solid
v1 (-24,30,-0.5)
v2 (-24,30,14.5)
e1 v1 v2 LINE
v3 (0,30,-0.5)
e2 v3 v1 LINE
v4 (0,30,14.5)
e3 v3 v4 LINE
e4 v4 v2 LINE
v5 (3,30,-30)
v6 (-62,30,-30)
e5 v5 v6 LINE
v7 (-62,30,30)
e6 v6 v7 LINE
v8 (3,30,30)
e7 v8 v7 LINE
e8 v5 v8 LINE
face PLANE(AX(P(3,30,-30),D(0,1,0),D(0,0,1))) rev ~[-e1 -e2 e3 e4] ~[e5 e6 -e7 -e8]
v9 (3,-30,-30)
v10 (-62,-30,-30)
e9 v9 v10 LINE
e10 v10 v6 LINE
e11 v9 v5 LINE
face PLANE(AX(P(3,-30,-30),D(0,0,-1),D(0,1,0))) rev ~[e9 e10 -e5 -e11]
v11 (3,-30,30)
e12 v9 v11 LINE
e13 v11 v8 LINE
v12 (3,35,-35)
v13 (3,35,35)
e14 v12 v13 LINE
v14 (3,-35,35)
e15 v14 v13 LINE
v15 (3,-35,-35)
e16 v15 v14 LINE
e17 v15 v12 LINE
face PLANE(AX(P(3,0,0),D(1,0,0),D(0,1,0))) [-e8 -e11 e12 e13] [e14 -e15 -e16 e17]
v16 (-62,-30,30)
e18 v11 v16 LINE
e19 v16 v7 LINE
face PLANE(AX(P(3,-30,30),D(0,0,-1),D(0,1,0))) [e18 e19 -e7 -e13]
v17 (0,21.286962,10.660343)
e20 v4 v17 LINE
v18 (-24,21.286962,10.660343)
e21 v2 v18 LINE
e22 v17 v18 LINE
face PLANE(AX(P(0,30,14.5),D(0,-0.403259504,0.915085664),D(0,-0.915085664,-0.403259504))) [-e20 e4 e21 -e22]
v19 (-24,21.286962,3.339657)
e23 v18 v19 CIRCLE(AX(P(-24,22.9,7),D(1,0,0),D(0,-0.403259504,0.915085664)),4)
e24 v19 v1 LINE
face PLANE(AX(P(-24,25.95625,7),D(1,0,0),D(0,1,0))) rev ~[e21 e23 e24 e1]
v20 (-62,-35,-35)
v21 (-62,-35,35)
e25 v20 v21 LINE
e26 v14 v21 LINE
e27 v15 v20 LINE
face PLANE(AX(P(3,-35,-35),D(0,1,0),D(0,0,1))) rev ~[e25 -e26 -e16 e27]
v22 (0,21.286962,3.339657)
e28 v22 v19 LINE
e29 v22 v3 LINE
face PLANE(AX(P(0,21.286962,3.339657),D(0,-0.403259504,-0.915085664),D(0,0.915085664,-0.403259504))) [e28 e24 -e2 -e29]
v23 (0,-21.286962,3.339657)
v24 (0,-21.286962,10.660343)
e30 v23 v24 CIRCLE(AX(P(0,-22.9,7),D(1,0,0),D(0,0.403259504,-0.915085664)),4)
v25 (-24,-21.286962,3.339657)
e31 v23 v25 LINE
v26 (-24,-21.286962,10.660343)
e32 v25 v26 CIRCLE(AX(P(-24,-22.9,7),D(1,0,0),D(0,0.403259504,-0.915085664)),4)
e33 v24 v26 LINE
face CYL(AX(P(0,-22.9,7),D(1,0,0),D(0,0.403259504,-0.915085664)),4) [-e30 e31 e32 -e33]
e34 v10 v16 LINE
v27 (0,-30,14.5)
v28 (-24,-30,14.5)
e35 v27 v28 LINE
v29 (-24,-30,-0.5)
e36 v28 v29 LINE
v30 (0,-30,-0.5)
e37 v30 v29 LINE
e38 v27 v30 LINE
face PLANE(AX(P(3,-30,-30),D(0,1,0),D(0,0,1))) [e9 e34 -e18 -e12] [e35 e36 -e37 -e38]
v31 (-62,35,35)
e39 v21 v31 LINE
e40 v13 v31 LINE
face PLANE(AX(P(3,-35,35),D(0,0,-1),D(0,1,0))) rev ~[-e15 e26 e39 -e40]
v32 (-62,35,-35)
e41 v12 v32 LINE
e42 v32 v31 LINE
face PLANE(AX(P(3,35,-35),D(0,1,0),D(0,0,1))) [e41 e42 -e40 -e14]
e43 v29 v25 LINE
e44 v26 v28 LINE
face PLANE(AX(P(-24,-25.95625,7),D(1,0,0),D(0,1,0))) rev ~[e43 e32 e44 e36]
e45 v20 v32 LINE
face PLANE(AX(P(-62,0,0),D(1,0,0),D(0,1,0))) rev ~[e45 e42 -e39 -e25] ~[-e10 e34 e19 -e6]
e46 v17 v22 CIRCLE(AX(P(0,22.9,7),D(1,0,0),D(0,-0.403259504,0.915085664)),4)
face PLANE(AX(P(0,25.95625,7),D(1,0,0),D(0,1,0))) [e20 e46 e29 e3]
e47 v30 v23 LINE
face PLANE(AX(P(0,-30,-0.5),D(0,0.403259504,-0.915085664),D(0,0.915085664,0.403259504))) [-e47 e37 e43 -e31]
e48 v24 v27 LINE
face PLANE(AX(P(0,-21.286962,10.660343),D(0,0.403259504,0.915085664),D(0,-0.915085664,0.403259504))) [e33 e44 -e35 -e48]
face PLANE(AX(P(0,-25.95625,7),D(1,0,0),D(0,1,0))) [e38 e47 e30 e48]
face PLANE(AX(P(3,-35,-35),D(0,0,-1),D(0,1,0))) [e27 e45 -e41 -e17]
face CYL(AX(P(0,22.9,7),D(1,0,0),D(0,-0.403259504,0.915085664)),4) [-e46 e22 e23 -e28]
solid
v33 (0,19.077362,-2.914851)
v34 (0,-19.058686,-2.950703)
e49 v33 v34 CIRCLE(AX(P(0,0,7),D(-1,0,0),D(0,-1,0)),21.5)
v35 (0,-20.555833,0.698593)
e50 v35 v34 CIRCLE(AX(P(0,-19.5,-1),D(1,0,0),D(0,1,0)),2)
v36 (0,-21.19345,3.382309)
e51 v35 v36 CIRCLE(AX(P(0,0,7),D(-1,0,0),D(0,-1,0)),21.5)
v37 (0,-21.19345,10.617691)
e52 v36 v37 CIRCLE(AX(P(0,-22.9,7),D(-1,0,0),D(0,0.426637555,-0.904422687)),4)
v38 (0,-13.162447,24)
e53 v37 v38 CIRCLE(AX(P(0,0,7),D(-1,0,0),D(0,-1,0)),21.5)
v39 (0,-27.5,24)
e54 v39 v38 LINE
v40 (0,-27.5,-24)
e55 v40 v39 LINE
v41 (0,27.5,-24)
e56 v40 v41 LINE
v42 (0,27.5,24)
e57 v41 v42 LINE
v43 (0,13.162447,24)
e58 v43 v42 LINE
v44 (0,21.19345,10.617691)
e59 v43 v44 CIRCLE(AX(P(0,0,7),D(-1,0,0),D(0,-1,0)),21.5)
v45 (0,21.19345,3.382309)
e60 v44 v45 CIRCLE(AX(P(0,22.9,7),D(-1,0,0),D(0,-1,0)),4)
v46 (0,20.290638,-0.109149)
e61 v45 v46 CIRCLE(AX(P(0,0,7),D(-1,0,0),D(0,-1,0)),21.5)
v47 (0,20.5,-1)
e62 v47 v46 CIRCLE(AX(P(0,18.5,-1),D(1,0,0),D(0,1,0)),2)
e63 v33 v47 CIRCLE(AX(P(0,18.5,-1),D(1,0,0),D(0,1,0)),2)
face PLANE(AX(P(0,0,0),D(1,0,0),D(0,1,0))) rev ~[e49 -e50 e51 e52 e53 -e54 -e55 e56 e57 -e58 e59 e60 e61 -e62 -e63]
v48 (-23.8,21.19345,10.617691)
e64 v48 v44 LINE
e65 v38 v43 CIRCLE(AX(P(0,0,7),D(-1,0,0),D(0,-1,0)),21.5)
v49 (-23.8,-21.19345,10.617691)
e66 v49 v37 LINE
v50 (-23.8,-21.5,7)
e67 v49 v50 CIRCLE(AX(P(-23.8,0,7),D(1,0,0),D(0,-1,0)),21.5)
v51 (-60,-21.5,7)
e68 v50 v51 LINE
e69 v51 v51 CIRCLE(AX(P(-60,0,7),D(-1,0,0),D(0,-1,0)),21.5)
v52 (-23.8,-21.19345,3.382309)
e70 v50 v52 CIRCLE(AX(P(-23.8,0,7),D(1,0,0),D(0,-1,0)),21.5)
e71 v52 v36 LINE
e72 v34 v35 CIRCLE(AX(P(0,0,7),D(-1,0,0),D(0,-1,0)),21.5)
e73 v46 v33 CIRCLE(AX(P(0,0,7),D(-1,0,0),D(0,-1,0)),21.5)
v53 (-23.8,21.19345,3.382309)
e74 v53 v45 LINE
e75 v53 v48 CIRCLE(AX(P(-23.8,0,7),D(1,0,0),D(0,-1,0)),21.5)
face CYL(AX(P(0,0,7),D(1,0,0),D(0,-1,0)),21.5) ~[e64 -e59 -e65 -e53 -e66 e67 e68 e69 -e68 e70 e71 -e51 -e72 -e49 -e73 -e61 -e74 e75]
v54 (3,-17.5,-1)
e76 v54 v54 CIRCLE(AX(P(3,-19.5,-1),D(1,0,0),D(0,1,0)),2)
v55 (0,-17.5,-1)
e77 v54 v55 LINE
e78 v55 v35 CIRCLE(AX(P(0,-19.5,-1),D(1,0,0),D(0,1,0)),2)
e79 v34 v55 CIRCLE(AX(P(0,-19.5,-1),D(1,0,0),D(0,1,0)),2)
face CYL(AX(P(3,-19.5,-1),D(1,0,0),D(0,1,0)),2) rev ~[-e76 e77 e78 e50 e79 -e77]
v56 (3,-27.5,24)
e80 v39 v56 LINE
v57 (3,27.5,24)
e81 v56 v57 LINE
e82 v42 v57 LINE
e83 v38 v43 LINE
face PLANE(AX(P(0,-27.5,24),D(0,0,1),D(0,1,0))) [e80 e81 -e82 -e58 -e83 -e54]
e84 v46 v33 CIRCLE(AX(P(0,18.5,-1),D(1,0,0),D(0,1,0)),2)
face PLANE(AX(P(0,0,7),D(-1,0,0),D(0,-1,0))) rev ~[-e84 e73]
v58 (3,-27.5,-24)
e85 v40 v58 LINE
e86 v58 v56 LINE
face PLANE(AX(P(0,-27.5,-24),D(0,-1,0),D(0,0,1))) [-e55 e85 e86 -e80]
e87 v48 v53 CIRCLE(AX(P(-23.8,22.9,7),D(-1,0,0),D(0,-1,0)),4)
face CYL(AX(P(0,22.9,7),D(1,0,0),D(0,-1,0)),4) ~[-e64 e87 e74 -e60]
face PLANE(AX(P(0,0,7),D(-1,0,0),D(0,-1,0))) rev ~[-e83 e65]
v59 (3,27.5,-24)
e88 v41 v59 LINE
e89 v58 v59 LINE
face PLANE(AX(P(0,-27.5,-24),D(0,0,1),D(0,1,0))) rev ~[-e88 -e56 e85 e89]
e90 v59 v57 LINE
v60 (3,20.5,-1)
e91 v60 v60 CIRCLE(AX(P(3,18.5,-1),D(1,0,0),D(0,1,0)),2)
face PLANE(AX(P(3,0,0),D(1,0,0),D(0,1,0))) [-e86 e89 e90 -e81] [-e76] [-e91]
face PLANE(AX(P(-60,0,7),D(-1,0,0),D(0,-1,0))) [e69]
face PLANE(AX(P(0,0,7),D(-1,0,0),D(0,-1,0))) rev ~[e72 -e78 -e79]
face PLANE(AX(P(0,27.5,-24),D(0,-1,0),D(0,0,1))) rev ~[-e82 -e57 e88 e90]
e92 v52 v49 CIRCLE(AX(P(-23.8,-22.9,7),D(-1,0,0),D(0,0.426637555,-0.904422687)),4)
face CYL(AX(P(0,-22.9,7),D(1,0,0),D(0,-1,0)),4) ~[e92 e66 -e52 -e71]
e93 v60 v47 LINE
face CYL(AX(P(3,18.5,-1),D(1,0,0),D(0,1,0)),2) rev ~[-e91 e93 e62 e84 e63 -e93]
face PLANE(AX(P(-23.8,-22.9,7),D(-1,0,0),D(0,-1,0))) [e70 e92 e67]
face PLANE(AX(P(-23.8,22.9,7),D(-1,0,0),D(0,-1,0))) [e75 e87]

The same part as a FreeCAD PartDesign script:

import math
import FreeCAD as App
import Part
import Sketcher

V = App.Vector
Q = App.Units.Quantity

doc = App.newDocument("Part")
body = doc.addObject("PartDesign::Body", "Body")

# Sketch on YZ plane
sketch1 = body.newObject("Sketcher::SketchObject", "Sketch")
sketch1.AttachmentSupport = (doc.getObject("YZ_Plane"), [""])
sketch1.MapMode = "FlatFace"
sketch1.addGeometry(Part.LineSegment(V(-27.5, 24, 0), V(-27.5, -24, 0)), False)
sketch1.addGeometry(Part.LineSegment(V(-27.5, -24, 0), V(27.5, -24, 0)), False)
sketch1.addGeometry(Part.LineSegment(V(27.5, -24, 0), V(27.5, 24, 0)), False)
sketch1.addGeometry(Part.LineSegment(V(27.5, 24, 0), V(-27.5, 24, 0)), False)
sketch1.addConstraint(Sketcher.Constraint("Coincident", 0, 2, 1, 1))
sketch1.addConstraint(Sketcher.Constraint("Coincident", 1, 2, 2, 1))
sketch1.addConstraint(Sketcher.Constraint("Coincident", 2, 2, 3, 1))
sketch1.addConstraint(Sketcher.Constraint("Coincident", 3, 2, 0, 1))
sketch1.addConstraint(Sketcher.Constraint("Vertical", 0))
sketch1.addConstraint(Sketcher.Constraint("Horizontal", 1))
sketch1.addConstraint(Sketcher.Constraint("Vertical", 2))
sketch1.addConstraint(Sketcher.Constraint("Horizontal", 3))
sketch1.addConstraint(Sketcher.Constraint("Symmetric", 0, 2, 2, 2, -1, 1))
sketch1.addConstraint(Sketcher.Constraint("DistanceX", 1, 1, 1, 2, Q("55 mm")))
sketch1.addConstraint(Sketcher.Constraint("DistanceY", 0, 2, 0, 1, Q("48 mm")))
pad1 = body.newObject("PartDesign::Pad", "Pad")
pad1.Profile = sketch1
pad1.Length = 3

# Sketch on YZ plane
sketch2 = body.newObject("Sketcher::SketchObject", "Sketch001")
sketch2.AttachmentSupport = (doc.getObject("YZ_Plane"), [""])
sketch2.MapMode = "FlatFace"
sketch2.addGeometry(Part.Circle(V(22.9, 7, 0), V(0, 0, 1), 4), False)
sketch2.addGeometry(Part.Circle(V(-22.9, 7, 0), V(0, 0, 1), 4), False)
sketch2.addConstraint(Sketcher.Constraint("Equal", 0, 1))
sketch2.addConstraint(Sketcher.Constraint("Symmetric", 0, 3, 1, 3, -2))
sketch2.addConstraint(Sketcher.Constraint("Diameter", 0, Q("8 mm")))
sketch2.addConstraint(Sketcher.Constraint("DistanceY", -1, 1, 0, 3, Q("7 mm")))
sketch2.addConstraint(Sketcher.Constraint("DistanceX", -1, 1, 0, 3, Q("22.9 mm")))
pad2 = body.newObject("PartDesign::Pad", "Pad001")
pad2.Profile = sketch2
pad2.Length = 23.8
pad2.Reversed = True

# Sketch on YZ plane
sketch3 = body.newObject("Sketcher::SketchObject", "Sketch002")
sketch3.AttachmentSupport = (doc.getObject("YZ_Plane"), [""])
sketch3.MapMode = "FlatFace"
sketch3.AttachmentOffset = App.Placement(V(0, 0, 3), App.Rotation())
sketch3.addGeometry(Part.Circle(V(-19.5, -1, 0), V(0, 0, 1), 2), False)
sketch3.addGeometry(Part.Circle(V(18.5, -1, 0), V(0, 0, 1), 2), False)
sketch3.addConstraint(Sketcher.Constraint("Equal", 0, 1))
sketch3.addConstraint(Sketcher.Constraint("Horizontal", 0, 3, 1, 3))
sketch3.addConstraint(Sketcher.Constraint("Diameter", 0, Q("4 mm")))
sketch3.addConstraint(Sketcher.Constraint("DistanceY", 0, 3, -1, 1, Q("1 mm")))
sketch3.addConstraint(Sketcher.Constraint("DistanceX", 0, 3, 1, 3, Q("38 mm")))
sketch3.addConstraint(Sketcher.Constraint("DistanceX", 0, 3, -1, 1, Q("19.5 mm")))
pocket1 = body.newObject("PartDesign::Pocket", "Pocket")
pocket1.Profile = sketch3
pocket1.Length = 25

# Sketch on YZ plane
sketch4 = body.newObject("Sketcher::SketchObject", "Sketch003")
sketch4.AttachmentSupport = (doc.getObject("YZ_Plane"), [""])
sketch4.MapMode = "FlatFace"
sketch4.addGeometry(Part.Circle(V(0, 7, 0), V(0, 0, 1), 21.5), False)
sketch4.addConstraint(Sketcher.Constraint("PointOnObject", 0, 3, -2))
sketch4.addConstraint(Sketcher.Constraint("Diameter", 0, Q("43 mm")))
sketch4.addConstraint(Sketcher.Constraint("DistanceY", -1, 1, 0, 3, Q("7 mm")))
pad3 = body.newObject("PartDesign::Pad", "Pad002")
pad3.Profile = sketch4
pad3.Length = 60
pad3.Reversed = True
body2 = doc.addObject("PartDesign::Body", "Body001")

# Sketch on YZ plane
sketch5 = body2.newObject("Sketcher::SketchObject", "Sketch004")
sketch5.AttachmentSupport = (doc.getObject("YZ_Plane001"), [""])
sketch5.MapMode = "FlatFace"
sketch5.AttachmentOffset = App.Placement(V(0, 0, 3), App.Rotation())
sketch5.addGeometry(Part.LineSegment(V(-35, 35, 0), V(-35, -35, 0)), False)
sketch5.addGeometry(Part.LineSegment(V(-35, -35, 0), V(35, -35, 0)), False)
sketch5.addGeometry(Part.LineSegment(V(35, -35, 0), V(35, 35, 0)), False)
sketch5.addGeometry(Part.LineSegment(V(35, 35, 0), V(-35, 35, 0)), False)
sketch5.addGeometry(Part.LineSegment(V(30, -30, 0), V(-30, -30, 0)), False)
sketch5.addGeometry(Part.LineSegment(V(-30, -30, 0), V(-30, 30, 0)), False)
sketch5.addGeometry(Part.LineSegment(V(-30, 30, 0), V(30, 30, 0)), False)
sketch5.addGeometry(Part.LineSegment(V(30, 30, 0), V(30, -30, 0)), False)
sketch5.addConstraint(Sketcher.Constraint("Coincident", 0, 2, 1, 1))
sketch5.addConstraint(Sketcher.Constraint("Coincident", 1, 2, 2, 1))
sketch5.addConstraint(Sketcher.Constraint("Coincident", 2, 2, 3, 1))
sketch5.addConstraint(Sketcher.Constraint("Coincident", 3, 2, 0, 1))
sketch5.addConstraint(Sketcher.Constraint("Coincident", 4, 2, 5, 1))
sketch5.addConstraint(Sketcher.Constraint("Coincident", 5, 2, 6, 1))
sketch5.addConstraint(Sketcher.Constraint("Coincident", 6, 2, 7, 1))
sketch5.addConstraint(Sketcher.Constraint("Coincident", 7, 2, 4, 1))
sketch5.addConstraint(Sketcher.Constraint("Vertical", 0))
sketch5.addConstraint(Sketcher.Constraint("Horizontal", 1))
sketch5.addConstraint(Sketcher.Constraint("Vertical", 2))
sketch5.addConstraint(Sketcher.Constraint("Horizontal", 3))
sketch5.addConstraint(Sketcher.Constraint("Horizontal", 4))
sketch5.addConstraint(Sketcher.Constraint("Vertical", 5))
sketch5.addConstraint(Sketcher.Constraint("Horizontal", 6))
sketch5.addConstraint(Sketcher.Constraint("Vertical", 7))
sketch5.addConstraint(Sketcher.Constraint("Symmetric", 0, 2, 2, 2, -1, 1))
sketch5.addConstraint(Sketcher.Constraint("Symmetric", 4, 2, 6, 2, -1, 1))
sketch5.addConstraint(Sketcher.Constraint("Equal", 3, 0))
sketch5.addConstraint(Sketcher.Constraint("Equal", 6, 5))
sketch5.addConstraint(Sketcher.Constraint("DistanceX", 1, 1, 1, 2, Q("70 mm")))
sketch5.addConstraint(Sketcher.Constraint("DistanceX", 4, 2, 4, 1, Q("60 mm")))
pad4 = body2.newObject("PartDesign::Pad", "Pad003")
pad4.Profile = sketch5
pad4.Length = 65
pad4.Reversed = True

# Sketch on YZ plane
sketch6 = body2.newObject("Sketcher::SketchObject", "Sketch005")
sketch6.AttachmentSupport = (doc.getObject("YZ_Plane001"), [""])
sketch6.MapMode = "FlatFace"
sketch6.addGeometry(Part.LineSegment(V(-30, -0.5, 0), V(-21.286962, 3.339657, 0)), False)
sketch6.addGeometry(Part.ArcOfCircle(Part.Circle(V(-22.9, 7, 0), V(0, 0, 1), 4), math.radians(-66.217895), math.radians(66.217895)), False)
sketch6.addGeometry(Part.LineSegment(V(-21.286962, 10.660343, 0), V(-30, 14.5, 0)), False)
sketch6.addGeometry(Part.LineSegment(V(-30, 14.5, 0), V(-30, -0.5, 0)), False)
sketch6.addGeometry(Part.LineSegment(V(30, 14.5, 0), V(21.286962, 10.660343, 0)), False)
sketch6.addGeometry(Part.ArcOfCircle(Part.Circle(V(22.9, 7, 0), V(0, 0, 1), 4), math.radians(113.782105), math.radians(246.217895)), False)
sketch6.addGeometry(Part.LineSegment(V(21.286962, 3.339657, 0), V(30, -0.5, 0)), False)
sketch6.addGeometry(Part.LineSegment(V(30, -0.5, 0), V(30, 14.5, 0)), False)
sketch6.addConstraint(Sketcher.Constraint("Tangent", 0, 2, 1, 1))
sketch6.addConstraint(Sketcher.Constraint("Tangent", 1, 2, 2, 1))
sketch6.addConstraint(Sketcher.Constraint("Coincident", 2, 2, 3, 1))
sketch6.addConstraint(Sketcher.Constraint("Coincident", 3, 2, 0, 1))
sketch6.addConstraint(Sketcher.Constraint("Tangent", 4, 2, 5, 1))
sketch6.addConstraint(Sketcher.Constraint("Tangent", 5, 2, 6, 1))
sketch6.addConstraint(Sketcher.Constraint("Coincident", 6, 2, 7, 1))
sketch6.addConstraint(Sketcher.Constraint("Coincident", 7, 2, 4, 1))
sketch6.addConstraint(Sketcher.Constraint("Vertical", 3))
sketch6.addConstraint(Sketcher.Constraint("Vertical", 7))
sketch6.addConstraint(Sketcher.Constraint("Equal", 1, 5))
sketch6.addConstraint(Sketcher.Constraint("Symmetric", 1, 3, 5, 3, -2))
sketch6.addConstraint(Sketcher.Constraint("Symmetric", 3, 2, 6, 2, -2))
sketch6.addConstraint(Sketcher.Constraint("Parallel", 0, 4))
sketch6.addConstraint(Sketcher.Constraint("Parallel", 2, 6))
sketch6.addConstraint(Sketcher.Constraint("Radius", 1, Q("4 mm")))
sketch6.addConstraint(Sketcher.Constraint("DistanceY", 3, 2, 3, 1, Q("15 mm")))
sketch6.addConstraint(Sketcher.Constraint("DistanceY", -1, 1, 1, 3, Q("7 mm")))
sketch6.addConstraint(Sketcher.Constraint("DistanceX", 2, 2, -1, 1, Q("30 mm")))
sketch6.addConstraint(Sketcher.Constraint("DistanceX", 1, 3, -1, 1, Q("22.9 mm")))
pad5 = body2.newObject("PartDesign::Pad", "Pad004")
pad5.Profile = sketch6
pad5.Length = 24
pad5.Reversed = True

doc.recompute()
